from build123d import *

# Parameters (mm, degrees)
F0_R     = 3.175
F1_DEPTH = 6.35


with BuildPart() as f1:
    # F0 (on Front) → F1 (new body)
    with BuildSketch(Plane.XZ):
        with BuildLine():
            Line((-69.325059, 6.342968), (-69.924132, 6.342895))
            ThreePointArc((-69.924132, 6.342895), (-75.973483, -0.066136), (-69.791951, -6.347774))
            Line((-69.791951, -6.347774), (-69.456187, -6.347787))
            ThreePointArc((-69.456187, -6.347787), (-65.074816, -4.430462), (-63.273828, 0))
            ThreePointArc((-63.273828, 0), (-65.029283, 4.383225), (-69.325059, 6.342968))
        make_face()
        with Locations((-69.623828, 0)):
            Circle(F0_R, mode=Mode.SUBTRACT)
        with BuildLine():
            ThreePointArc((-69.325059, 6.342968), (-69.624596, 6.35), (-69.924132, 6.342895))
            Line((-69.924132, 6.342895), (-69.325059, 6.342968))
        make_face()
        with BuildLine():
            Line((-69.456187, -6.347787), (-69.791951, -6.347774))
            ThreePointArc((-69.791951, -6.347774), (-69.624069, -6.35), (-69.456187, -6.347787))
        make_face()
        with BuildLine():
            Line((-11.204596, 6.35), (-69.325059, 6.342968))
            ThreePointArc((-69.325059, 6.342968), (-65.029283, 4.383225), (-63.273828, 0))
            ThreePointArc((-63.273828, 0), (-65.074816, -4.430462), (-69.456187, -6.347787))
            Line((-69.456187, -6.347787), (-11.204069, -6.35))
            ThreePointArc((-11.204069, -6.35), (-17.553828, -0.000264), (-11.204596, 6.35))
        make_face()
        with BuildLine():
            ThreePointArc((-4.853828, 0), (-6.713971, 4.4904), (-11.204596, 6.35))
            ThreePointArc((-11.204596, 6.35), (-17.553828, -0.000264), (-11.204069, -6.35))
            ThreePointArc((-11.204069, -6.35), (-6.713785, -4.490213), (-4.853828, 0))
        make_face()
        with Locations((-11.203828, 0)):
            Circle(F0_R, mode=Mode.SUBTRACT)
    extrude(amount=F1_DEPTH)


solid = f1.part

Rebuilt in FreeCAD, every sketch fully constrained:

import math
import FreeCAD as App
import Part
import Sketcher
Q = App.Units.Quantity

doc = App.newDocument("Part")
body = doc.addObject("PartDesign::Body", "Body")

# Sketch on XZ plane
sketch1 = doc.addObject("Sketcher::SketchObject", "Sketch")
body.addObject(sketch1)
sketch1.AttachmentSupport = (doc.XZ_Plane, [""])
sketch1.MapMode = "FlatFace"
sketch1.addGeometry(Part.ArcOfCircle(Part.Circle(App.Vector(-69.623823, -0.000151, 0), App.Vector(0, 0, 1), 6.350151), math.radians(87.303338), math.radians(92.710626)), False)
sketch1.addGeometry(Part.ArcOfCircle(Part.Circle(App.Vector(-69.623827, 0, 0), App.Vector(0, 0, 1), 6.35), math.radians(92.710647), math.radians(268.482851)), False)
sketch1.addGeometry(Part.ArcOfCircle(Part.Circle(App.Vector(-69.623823, 0.00037, 0), App.Vector(0, 0, 1), 6.35037), math.radians(-91.517099), math.radians(-88.487338)), False)
sketch1.addGeometry(Part.LineSegment(App.Vector(-69.456187, -6.347787, 0), App.Vector(-11.204069, -6.35, 0)), False)
sketch1.addGeometry(Part.ArcOfCircle(Part.Circle(App.Vector(-11.203828, 0, 0), App.Vector(0, 0, 1), 6.35), math.radians(-90.002173), math.radians(-0.000002)), False)
sketch1.addGeometry(Part.ArcOfCircle(Part.Circle(App.Vector(-11.203827, 0.000001, 0), App.Vector(0, 0, 1), 6.349999), math.radians(-0.000013), math.radians(90.006943)), False)
sketch1.addGeometry(Part.LineSegment(App.Vector(-11.204596, 6.35, 0), App.Vector(-69.325059, 6.342968, 0)), False)
sketch1.addGeometry(Part.Circle(App.Vector(-69.623828, 0, 0), App.Vector(0, 0, 1), 3.175), False)
sketch1.addGeometry(Part.Circle(App.Vector(-11.203828, 0, 0), App.Vector(0, 0, 1), 3.175), False)
sketch1.addConstraint(Sketcher.Constraint("Coincident", 0, 2, 1, 1))
sketch1.addConstraint(Sketcher.Constraint("Coincident", 1, 2, 2, 1))
sketch1.addConstraint(Sketcher.Constraint("Coincident", 2, 2, 3, 1))
sketch1.addConstraint(Sketcher.Constraint("Coincident", 3, 2, 4, 1))
sketch1.addConstraint(Sketcher.Constraint("Coincident", 4, 2, 5, 1))
sketch1.addConstraint(Sketcher.Constraint("Coincident", 5, 2, 6, 1))
sketch1.addConstraint(Sketcher.Constraint("Coincident", 6, 2, 0, 1))
sketch1.addConstraint(Sketcher.Constraint("Coincident", 5, 3, 4, 3))
sketch1.addConstraint(Sketcher.Constraint("Coincident", 7, 3, 1, 3))
sketch1.addConstraint(Sketcher.Constraint("Coincident", 8, 3, 4, 3))
sketch1.addConstraint(Sketcher.Constraint("PointOnObject", 1, 3, -1))
sketch1.addConstraint(Sketcher.Constraint("PointOnObject", 4, 3, -1))
sketch1.addConstraint(Sketcher.Constraint("PointOnObject", 4, 2, -1))
sketch1.addConstraint(Sketcher.Constraint("Diameter", 7, Q("0.25 in")))
sketch1.addConstraint(Sketcher.Constraint("Diameter", 8, Q("0.25 in")))
sketch1.addConstraint(Sketcher.Constraint("Radius", 1, Q("0.25 in")))
sketch1.addConstraint(Sketcher.Constraint("Radius", 4, Q("0.25 in")))
sketch1.addConstraint(Sketcher.Constraint("DistanceX", 2, 3, 4, 3, Q("2.2999998 in")))
sketch1.addConstraint(Sketcher.Constraint("DistanceX", 1, 3, 4, 3, Q("2.3 in")))
sketch1.addConstraint(Sketcher.Constraint("DistanceX", 0, 3, 5, 3, Q("2.2999998 in")))
sketch1.addConstraint(Sketcher.Constraint("Radius", 0, Q("6.350151 mm")))
sketch1.addConstraint(Sketcher.Constraint("Radius", 2, Q("6.35037 mm")))
sketch1.addConstraint(Sketcher.Constraint("DistanceX", 0, 3, 2, 2, Q("0.0065998 in")))
sketch1.addConstraint(Sketcher.Constraint("DistanceY", 2, 3, 6, 2, Q("6.342598 mm")))
sketch1.addConstraint(Sketcher.Constraint("Distance", 3, Q("58.252118 mm")))
sketch1.addConstraint(Sketcher.Constraint("DistanceX", 4, 3, -1, 1, Q("11.203828 mm")))
sketch1.addConstraint(Sketcher.Constraint("DistanceX", 0, 2, -1, 1, Q("69.924132 mm")))
sketch1.addConstraint(Sketcher.Constraint("DistanceX", 1, 2, -1, 1, Q("69.791951 mm")))
sketch1.addConstraint(Sketcher.Constraint("DistanceX", 5, 2, 5, 3, Q("0.000769 mm")))
pad1 = doc.addObject("PartDesign::Pad", "Pad")
body.addObject(pad1)
pad1.Profile = sketch1
pad1.Length = Q("0.25 in")

doc.recompute()
